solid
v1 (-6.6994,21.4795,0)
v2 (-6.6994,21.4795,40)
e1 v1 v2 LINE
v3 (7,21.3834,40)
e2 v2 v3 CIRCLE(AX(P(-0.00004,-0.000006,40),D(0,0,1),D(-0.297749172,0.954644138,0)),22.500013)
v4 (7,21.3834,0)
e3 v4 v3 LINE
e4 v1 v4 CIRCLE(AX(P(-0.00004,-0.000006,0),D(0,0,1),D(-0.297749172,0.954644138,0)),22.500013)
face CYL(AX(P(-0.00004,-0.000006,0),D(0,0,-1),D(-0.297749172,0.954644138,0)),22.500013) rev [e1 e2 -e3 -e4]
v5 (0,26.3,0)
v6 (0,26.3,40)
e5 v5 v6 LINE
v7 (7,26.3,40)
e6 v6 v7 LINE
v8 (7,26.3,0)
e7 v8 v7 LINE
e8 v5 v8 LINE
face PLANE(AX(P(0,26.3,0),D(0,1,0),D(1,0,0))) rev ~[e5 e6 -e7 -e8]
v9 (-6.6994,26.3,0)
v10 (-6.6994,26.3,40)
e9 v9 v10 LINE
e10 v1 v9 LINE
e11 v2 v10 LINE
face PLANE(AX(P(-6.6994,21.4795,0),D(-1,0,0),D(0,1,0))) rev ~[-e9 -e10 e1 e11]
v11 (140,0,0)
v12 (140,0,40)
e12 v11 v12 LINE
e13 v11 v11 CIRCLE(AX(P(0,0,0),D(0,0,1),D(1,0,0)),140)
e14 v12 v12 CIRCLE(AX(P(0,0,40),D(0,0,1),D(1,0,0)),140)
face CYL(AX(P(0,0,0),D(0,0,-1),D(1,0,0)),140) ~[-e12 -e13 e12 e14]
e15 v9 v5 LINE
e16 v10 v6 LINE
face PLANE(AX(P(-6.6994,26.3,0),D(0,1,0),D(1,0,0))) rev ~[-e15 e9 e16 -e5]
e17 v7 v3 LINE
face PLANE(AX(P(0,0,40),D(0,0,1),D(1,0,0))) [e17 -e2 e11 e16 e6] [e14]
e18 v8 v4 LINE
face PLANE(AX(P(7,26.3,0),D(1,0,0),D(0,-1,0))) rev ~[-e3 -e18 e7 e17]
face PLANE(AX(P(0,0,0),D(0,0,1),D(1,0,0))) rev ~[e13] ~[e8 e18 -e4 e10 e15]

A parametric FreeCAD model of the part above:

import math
import FreeCAD as App
import Part
import Sketcher
Q = App.Units.Quantity

doc = App.newDocument("Part")
body = doc.addObject("PartDesign::Body", "Body")

sketch1 = body.newObject("Sketcher::SketchObject", "Sketch")
sketch1.AttachmentSupport = (doc.getObject("XY_Plane"), [""])
sketch1.MapMode = "FlatFace"
sketch1.addGeometry([
    Part.Circle(App.Vector(0, 0, 0), App.Vector(0, 0, 1), 140),
    Part.ArcOfCircle(Part.Circle(App.Vector(0, 0, 0), App.Vector(0, 0, 1), 22.5), math.radians(107), math.radians(432)),
    Part.LineSegment(App.Vector(-6.7, 21.5, 0), App.Vector(-6.7, 26.3, 0)),
    Part.LineSegment(App.Vector(-6.7, 26.3, 0), App.Vector(7, 26.3, 0)),
    Part.LineSegment(App.Vector(7, 26.3, 0), App.Vector(7, 21.4, 0)),
], False)
sketch1.addConstraint([
    Sketcher.Constraint("Coincident", 1, 1, 2, 1),
    Sketcher.Constraint("Coincident", 2, 2, 3, 1),
    Sketcher.Constraint("Coincident", 3, 2, 4, 1),
    Sketcher.Constraint("Coincident", 4, 2, 1, 2),
    Sketcher.Constraint("Vertical", 2),
    Sketcher.Constraint("Horizontal", 3),
    Sketcher.Constraint("Vertical", 4),
    Sketcher.Constraint("Coincident", 0, 3, -1, 1),
    Sketcher.Constraint("Coincident", 1, 3, -1, 1),
    Sketcher.Constraint("Diameter", 0, Q("280 mm")),
    Sketcher.Constraint("Radius", 1, Q("22.5 mm")),
    Sketcher.Constraint("DistanceX", -1, 1, 3, 2, Q("7 mm")),
    Sketcher.Constraint("DistanceY", -1, 1, 2, 2, Q("26.3 mm")),
    Sketcher.Constraint("DistanceX", 3, 1, 3, 2, Q("13.6994 mm")),
])
pad1 = body.newObject("PartDesign::Pad", "Pad")
pad1.Profile = sketch1
pad1.Length = 40

doc.recompute()
